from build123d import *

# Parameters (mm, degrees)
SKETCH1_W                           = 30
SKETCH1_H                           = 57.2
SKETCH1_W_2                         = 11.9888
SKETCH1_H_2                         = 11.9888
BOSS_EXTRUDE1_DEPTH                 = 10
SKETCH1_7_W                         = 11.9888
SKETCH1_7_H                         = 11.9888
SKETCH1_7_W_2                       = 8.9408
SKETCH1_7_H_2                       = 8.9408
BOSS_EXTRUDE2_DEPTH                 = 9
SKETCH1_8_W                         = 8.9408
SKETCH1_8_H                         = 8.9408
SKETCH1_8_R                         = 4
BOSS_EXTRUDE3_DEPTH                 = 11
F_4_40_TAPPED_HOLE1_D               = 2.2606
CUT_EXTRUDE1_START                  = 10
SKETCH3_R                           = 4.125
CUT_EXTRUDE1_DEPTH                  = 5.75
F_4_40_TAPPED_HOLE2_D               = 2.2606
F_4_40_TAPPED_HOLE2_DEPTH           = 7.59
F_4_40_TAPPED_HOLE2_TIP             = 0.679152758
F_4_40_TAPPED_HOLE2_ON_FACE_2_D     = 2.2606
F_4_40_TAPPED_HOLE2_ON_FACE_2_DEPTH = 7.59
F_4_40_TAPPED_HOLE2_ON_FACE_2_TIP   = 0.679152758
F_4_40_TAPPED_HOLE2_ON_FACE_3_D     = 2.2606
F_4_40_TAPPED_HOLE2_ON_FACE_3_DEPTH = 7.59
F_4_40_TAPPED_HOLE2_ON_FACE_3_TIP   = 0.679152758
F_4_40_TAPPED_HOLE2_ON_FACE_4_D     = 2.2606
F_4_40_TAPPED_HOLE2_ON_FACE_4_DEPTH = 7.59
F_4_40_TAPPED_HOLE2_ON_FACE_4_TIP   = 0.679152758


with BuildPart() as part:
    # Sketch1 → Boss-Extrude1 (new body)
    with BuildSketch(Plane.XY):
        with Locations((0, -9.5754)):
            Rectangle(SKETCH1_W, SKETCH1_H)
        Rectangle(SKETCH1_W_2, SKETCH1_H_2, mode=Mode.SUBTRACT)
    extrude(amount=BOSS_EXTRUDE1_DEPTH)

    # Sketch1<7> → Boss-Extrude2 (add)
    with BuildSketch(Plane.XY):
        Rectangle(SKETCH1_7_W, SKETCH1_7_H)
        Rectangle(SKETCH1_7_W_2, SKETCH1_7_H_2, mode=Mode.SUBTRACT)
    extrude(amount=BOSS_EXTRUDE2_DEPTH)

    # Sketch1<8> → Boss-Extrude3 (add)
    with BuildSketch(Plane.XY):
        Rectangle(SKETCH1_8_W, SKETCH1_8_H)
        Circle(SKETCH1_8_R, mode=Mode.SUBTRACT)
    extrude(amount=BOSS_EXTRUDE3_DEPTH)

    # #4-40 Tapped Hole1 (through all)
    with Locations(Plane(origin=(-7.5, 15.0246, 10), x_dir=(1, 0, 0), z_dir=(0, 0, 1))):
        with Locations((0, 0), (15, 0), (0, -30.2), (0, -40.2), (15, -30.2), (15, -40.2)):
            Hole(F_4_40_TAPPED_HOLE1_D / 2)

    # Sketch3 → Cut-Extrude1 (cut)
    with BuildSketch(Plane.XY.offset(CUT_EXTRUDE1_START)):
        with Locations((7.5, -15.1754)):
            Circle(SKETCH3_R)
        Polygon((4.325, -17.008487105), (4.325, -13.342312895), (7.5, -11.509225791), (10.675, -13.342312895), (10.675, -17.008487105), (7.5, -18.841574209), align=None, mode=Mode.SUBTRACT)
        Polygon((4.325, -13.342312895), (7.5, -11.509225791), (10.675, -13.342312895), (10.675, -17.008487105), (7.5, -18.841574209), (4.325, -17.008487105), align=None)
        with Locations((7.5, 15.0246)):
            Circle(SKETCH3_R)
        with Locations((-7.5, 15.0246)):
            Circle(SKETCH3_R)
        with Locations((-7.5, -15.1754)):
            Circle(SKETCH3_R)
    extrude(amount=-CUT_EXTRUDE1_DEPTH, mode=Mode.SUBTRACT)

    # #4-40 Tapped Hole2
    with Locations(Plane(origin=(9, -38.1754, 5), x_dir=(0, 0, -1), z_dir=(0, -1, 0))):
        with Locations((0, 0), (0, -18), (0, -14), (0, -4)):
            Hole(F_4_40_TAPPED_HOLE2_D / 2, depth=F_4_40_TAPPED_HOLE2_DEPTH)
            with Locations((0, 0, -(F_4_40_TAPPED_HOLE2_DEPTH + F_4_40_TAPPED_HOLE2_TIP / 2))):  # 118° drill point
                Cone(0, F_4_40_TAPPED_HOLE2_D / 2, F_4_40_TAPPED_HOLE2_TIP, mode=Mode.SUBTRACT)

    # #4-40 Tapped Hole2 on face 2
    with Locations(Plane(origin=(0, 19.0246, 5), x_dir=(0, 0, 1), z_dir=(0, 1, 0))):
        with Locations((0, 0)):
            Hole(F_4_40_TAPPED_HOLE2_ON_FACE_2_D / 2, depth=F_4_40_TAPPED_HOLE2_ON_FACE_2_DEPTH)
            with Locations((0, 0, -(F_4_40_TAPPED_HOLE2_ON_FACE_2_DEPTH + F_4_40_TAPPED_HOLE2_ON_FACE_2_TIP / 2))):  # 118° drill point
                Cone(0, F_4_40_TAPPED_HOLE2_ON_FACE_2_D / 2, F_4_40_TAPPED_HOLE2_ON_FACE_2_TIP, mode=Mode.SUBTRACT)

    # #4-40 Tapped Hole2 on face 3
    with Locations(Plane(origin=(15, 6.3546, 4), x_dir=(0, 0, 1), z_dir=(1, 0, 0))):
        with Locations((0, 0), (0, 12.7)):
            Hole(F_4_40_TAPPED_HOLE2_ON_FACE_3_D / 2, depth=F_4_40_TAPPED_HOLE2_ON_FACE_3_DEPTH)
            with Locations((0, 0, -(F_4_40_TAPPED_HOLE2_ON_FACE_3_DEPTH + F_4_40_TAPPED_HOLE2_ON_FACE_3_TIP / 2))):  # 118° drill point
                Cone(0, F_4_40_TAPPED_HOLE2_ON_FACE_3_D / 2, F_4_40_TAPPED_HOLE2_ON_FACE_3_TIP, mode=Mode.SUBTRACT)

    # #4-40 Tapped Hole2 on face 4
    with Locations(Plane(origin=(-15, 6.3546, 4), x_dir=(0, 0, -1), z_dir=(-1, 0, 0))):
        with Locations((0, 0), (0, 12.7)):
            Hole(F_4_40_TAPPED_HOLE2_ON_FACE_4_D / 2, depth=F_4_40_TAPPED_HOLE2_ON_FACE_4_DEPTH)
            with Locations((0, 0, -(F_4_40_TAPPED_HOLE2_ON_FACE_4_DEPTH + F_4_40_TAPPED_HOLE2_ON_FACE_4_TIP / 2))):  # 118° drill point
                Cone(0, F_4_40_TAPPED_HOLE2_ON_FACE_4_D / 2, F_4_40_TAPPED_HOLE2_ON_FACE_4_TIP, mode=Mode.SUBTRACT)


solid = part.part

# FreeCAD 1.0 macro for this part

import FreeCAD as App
import Part
import Sketcher
from FreeCAD import Vector
Q = App.Units.Quantity


def add_polygon(sketch, points):
    """Adds a closed chain of lines whose ends are joined by coincident constraints."""
    first, n = sketch.GeometryCount, len(points)
    for a, b in zip(points, points[1:] + points[:1]):
        sketch.addGeometry(Part.LineSegment(App.Vector(*a, 0), App.Vector(*b, 0)), False)
    for i in range(n):
        sketch.addConstraint(Sketcher.Constraint("Coincident", first + i, 2, first + (i + 1) % n, 1))

doc = App.newDocument("Part")
body = doc.addObject("PartDesign::Body", "Body")

sketch1 = body.newObject("Sketcher::SketchObject", "Sketch")
sketch1.AttachmentSupport = (doc.getObject("XY_Plane"), [""])
sketch1.MapMode = "FlatFace"
add_polygon(sketch1, [(-15, 19), (-15, -38), (15, -38), (15, 19)])
add_polygon(sketch1, [(6, -6), (-6, -6), (-6, 6), (6, 6)])
sketch1.addConstraint([
    Sketcher.Constraint("Vertical", 0),
    Sketcher.Constraint("Horizontal", 1),
    Sketcher.Constraint("Vertical", 2),
    Sketcher.Constraint("Horizontal", 3),
    Sketcher.Constraint("Horizontal", 4),
    Sketcher.Constraint("Vertical", 5),
    Sketcher.Constraint("Horizontal", 6),
    Sketcher.Constraint("Vertical", 7),
    Sketcher.Constraint("Symmetric", 4, 2, 6, 2, -1, 1),
    Sketcher.Constraint("Equal", 6, 5),
    Sketcher.Constraint("DistanceX", 1, 1, 1, 2, Q("30 mm")),
    Sketcher.Constraint("DistanceY", 0, 2, 0, 1, Q("57.2 mm")),
    Sketcher.Constraint("DistanceX", 0, 2, -1, 1, Q("15 mm")),
    Sketcher.Constraint("DistanceX", 4, 2, 4, 1, Q("11.9888 mm")),
    Sketcher.Constraint("DistanceY", 4, 2, 3, 2, Q("25.019 mm")),
])
pad1 = body.newObject("PartDesign::Pad", "Pad")
pad1.Profile = sketch1
pad1.Length = 10

sketch2 = body.newObject("Sketcher::SketchObject", "Sketch001")
sketch2.AttachmentSupport = (doc.getObject("XY_Plane"), [""])
sketch2.MapMode = "FlatFace"
add_polygon(sketch2, [(-6, 6), (-6, -6), (6, -6), (6, 6)])
add_polygon(sketch2, [(4, -4), (-4, -4), (-4, 4), (4, 4)])
sketch2.addConstraint([
    Sketcher.Constraint("Vertical", 0),
    Sketcher.Constraint("Horizontal", 1),
    Sketcher.Constraint("Vertical", 2),
    Sketcher.Constraint("Horizontal", 3),
    Sketcher.Constraint("Horizontal", 4),
    Sketcher.Constraint("Vertical", 5),
    Sketcher.Constraint("Horizontal", 6),
    Sketcher.Constraint("Vertical", 7),
    Sketcher.Constraint("Symmetric", 0, 2, 2, 2, -1, 1),
    Sketcher.Constraint("Symmetric", 4, 2, 6, 2, -1, 1),
    Sketcher.Constraint("Equal", 3, 0),
    Sketcher.Constraint("Equal", 6, 5),
    Sketcher.Constraint("DistanceX", 1, 1, 1, 2, Q("11.9888 mm")),
    Sketcher.Constraint("DistanceX", 4, 2, 4, 1, Q("8.9408 mm")),
])
pad2 = body.newObject("PartDesign::Pad", "Pad001")
pad2.Profile = sketch2
pad2.Length = 9

sketch3 = body.newObject("Sketcher::SketchObject", "Sketch002")
sketch3.AttachmentSupport = (doc.getObject("XY_Plane"), [""])
sketch3.MapMode = "FlatFace"
add_polygon(sketch3, [(-4.5, 4.5), (-4.5, -4.5), (4.5, -4.5), (4.5, 4.5)])
sketch3.addGeometry(Part.Circle(Vector(0, 0, 0), Vector(0, 0, 1), 4), False)
sketch3.addConstraint([
    Sketcher.Constraint("Vertical", 0),
    Sketcher.Constraint("Horizontal", 1),
    Sketcher.Constraint("Vertical", 2),
    Sketcher.Constraint("Horizontal", 3),
    Sketcher.Constraint("Coincident", 4, 3, -1, 1),
    Sketcher.Constraint("Symmetric", 0, 2, 2, 2, -1, 1),
    Sketcher.Constraint("Equal", 3, 0),
    Sketcher.Constraint("Diameter", 4, Q("8 mm")),
    Sketcher.Constraint("DistanceX", 1, 1, 1, 2, Q("8.9408 mm")),
])
pad3 = body.newObject("PartDesign::Pad", "Pad002")
pad3.Profile = sketch3
pad3.Length = 11

sketch4 = body.newObject("Sketcher::SketchObject", "Sketch003")
sketch4.AttachmentSupport = (doc.getObject("XY_Plane"), [""])
sketch4.MapMode = "FlatFace"
sketch4.AttachmentOffset = App.Placement(Vector(0, 0, 10), App.Rotation())
sketch4.addGeometry([
    Part.Circle(Vector(-7.5, 15, 0), Vector(0, 0, 1), 1.1),
    Part.Circle(Vector(7.5, 15, 0), Vector(0, 0, 1), 1.1),
    Part.Circle(Vector(-7.5, -15.2, 0), Vector(0, 0, 1), 1.1),
    Part.Circle(Vector(-7.5, -25.2, 0), Vector(0, 0, 1), 1.1),
    Part.Circle(Vector(7.5, -15.2, 0), Vector(0, 0, 1), 1.1),
    Part.Circle(Vector(7.5, -25.2, 0), Vector(0, 0, 1), 1.1),
], False)
sketch4.addConstraint([
    Sketcher.Constraint("Equal", 0, 1),
    Sketcher.Constraint("Equal", 1, 2),
    Sketcher.Constraint("Equal", 2, 3),
    Sketcher.Constraint("Equal", 3, 4),
    Sketcher.Constraint("Equal", 4, 5),
    Sketcher.Constraint("Symmetric", 0, 3, 1, 3, -2),
    Sketcher.Constraint("Symmetric", 2, 3, 4, 3, -2),
    Sketcher.Constraint("Symmetric", 3, 3, 5, 3, -2),
    Sketcher.Constraint("Vertical", 0, 3, 2, 3),
    Sketcher.Constraint("Vertical", 2, 3, 3, 3),
    Sketcher.Constraint("DistanceX", 0, 3, 1, 3, Q("15 mm")),
    Sketcher.Constraint("DistanceY", 3, 3, 2, 3, Q("10 mm")),
    Sketcher.Constraint("Diameter", 0, Q("2.2606 mm")),
    Sketcher.Constraint("DistanceY", 2, 3, 0, 3, Q("30.2 mm")),
    Sketcher.Constraint("DistanceY", -1, 1, 0, 3, Q("15.0246 mm")),
])
doc.recompute()
hole = body.newObject("PartDesign::Hole", "Hole")
hole.Profile = sketch4
hole.ThreadType = "None"
hole.Diameter = 2.2606
hole.DepthType = "ThroughAll"

sketch5 = body.newObject("Sketcher::SketchObject", "Sketch004")
sketch5.AttachmentSupport = (doc.getObject("XY_Plane"), [""])
sketch5.MapMode = "FlatFace"
sketch5.AttachmentOffset = App.Placement(Vector(0, 0, 10), App.Rotation())
sketch5.addGeometry([
    Part.Circle(Vector(7.5, -15.2, 0), Vector(0, 0, 1), 4.1),
    Part.Circle(Vector(7.5, 15, 0), Vector(0, 0, 1), 4.1),
    Part.Circle(Vector(-7.5, 15, 0), Vector(0, 0, 1), 4.1),
    Part.Circle(Vector(-7.5, -15.2, 0), Vector(0, 0, 1), 4.1),
], False)
sketch5.addConstraint([
    Sketcher.Constraint("Equal", 0, 1),
    Sketcher.Constraint("Equal", 1, 2),
    Sketcher.Constraint("Equal", 2, 3),
    Sketcher.Constraint("Symmetric", 1, 3, 2, 3, -2),
    Sketcher.Constraint("Symmetric", 0, 3, 3, 3, -2),
    Sketcher.Constraint("Vertical", 0, 3, 1, 3),
    Sketcher.Constraint("Diameter", 0, Q("8.25 mm")),
    Sketcher.Constraint("DistanceX", 2, 3, 1, 3, Q("15 mm")),
    Sketcher.Constraint("DistanceY", 0, 3, 1, 3, Q("30.2 mm")),
    Sketcher.Constraint("DistanceY", 0, 3, -1, 1, Q("15.1754 mm")),
])
pocket1 = body.newObject("PartDesign::Pocket", "Pocket")
pocket1.Profile = sketch5
pocket1.Length = 5.75

sketch6 = body.newObject("Sketcher::SketchObject", "Sketch005")
sketch6.AttachmentSupport = (doc.getObject("XZ_Plane"), [""])
sketch6.MapMode = "FlatFace"
sketch6.AttachmentOffset = App.Placement(Vector(0, 0, 38.1754), App.Rotation())
sketch6.addGeometry([
    Part.Circle(Vector(9, 5, 0), Vector(0, 0, 1), 1.1),
    Part.Circle(Vector(-9, 5, 0), Vector(0, 0, 1), 1.1),
    Part.Circle(Vector(-5, 5, 0), Vector(0, 0, 1), 1.1),
    Part.Circle(Vector(5, 5, 0), Vector(0, 0, 1), 1.1),
], False)
sketch6.addConstraint([
    Sketcher.Constraint("Equal", 0, 1),
    Sketcher.Constraint("Equal", 1, 2),
    Sketcher.Constraint("Equal", 2, 3),
    Sketcher.Constraint("Symmetric", 0, 3, 1, 3, -2),
    Sketcher.Constraint("Symmetric", 2, 3, 3, 3, -2),
    Sketcher.Constraint("Horizontal", 1, 3, 2, 3),
    Sketcher.Constraint("DistanceX", -1, 1, 0, 3, Q("9 mm")),
    Sketcher.Constraint("DistanceY", -1, 1, 0, 3, Q("5 mm")),
    Sketcher.Constraint("DistanceX", 2, 3, -1, 1, Q("5 mm")),
    Sketcher.Constraint("Diameter", 0, Q("2.2606 mm")),
])
doc.recompute()
hole2 = body.newObject("PartDesign::Hole", "Hole001")
hole2.Profile = sketch6
hole2.ThreadType = "None"
hole2.Diameter = 2.2606
hole2.DepthType = "Dimension"
hole2.Depth = 7.59
hole2.DrillPoint = "Angled"
hole2.DrillPointAngle = 118

sketch7 = body.newObject("Sketcher::SketchObject", "Sketch006")
sketch7.AttachmentSupport = (doc.getObject("XZ_Plane"), [""])
sketch7.MapMode = "FlatFace"
sketch7.AttachmentOffset = App.Placement(Vector(0, 0, -19.0246), App.Rotation())
sketch7.addGeometry(Part.Circle(Vector(0, 5, 0), Vector(0, 0, 1), 1.1), False)
sketch7.addConstraint([
    Sketcher.Constraint("PointOnObject", 0, 3, -2),
    Sketcher.Constraint("DistanceY", -1, 1, 0, 3, Q("5 mm")),
    Sketcher.Constraint("Diameter", 0, Q("2.2606 mm")),
])
doc.recompute()
hole3 = body.newObject("PartDesign::Hole", "Hole002")
hole3.Profile = sketch7
hole3.ThreadType = "None"
hole3.Diameter = 2.2606
hole3.DepthType = "Dimension"
hole3.Depth = 7.59
hole3.DrillPoint = "Angled"
hole3.DrillPointAngle = 118
hole3.Reversed = True

sketch8 = body.newObject("Sketcher::SketchObject", "Sketch007")
sketch8.AttachmentSupport = (doc.getObject("YZ_Plane"), [""])
sketch8.MapMode = "FlatFace"
sketch8.AttachmentOffset = App.Placement(Vector(0, 0, 15), App.Rotation())
sketch8.addGeometry([
    Part.Circle(Vector(6.4, 4, 0), Vector(0, 0, 1), 1.1),
    Part.Circle(Vector(-6.3, 4, 0), Vector(0, 0, 1), 1.1),
], False)
sketch8.addConstraint([
    Sketcher.Constraint("Equal", 0, 1),
    Sketcher.Constraint("Horizontal", 0, 3, 1, 3),
    Sketcher.Constraint("DistanceY", -1, 1, 0, 3, Q("4 mm")),
    Sketcher.Constraint("Diameter", 0, Q("2.2606 mm")),
    Sketcher.Constraint("DistanceX", 1, 3, 0, 3, Q("12.7 mm")),
    Sketcher.Constraint("DistanceX", -1, 1, 0, 3, Q("6.3546 mm")),
])
doc.recompute()
hole4 = body.newObject("PartDesign::Hole", "Hole003")
hole4.Profile = sketch8
hole4.ThreadType = "None"
hole4.Diameter = 2.2606
hole4.DepthType = "Dimension"
hole4.Depth = 7.59
hole4.DrillPoint = "Angled"
hole4.DrillPointAngle = 118

sketch9 = body.newObject("Sketcher::SketchObject", "Sketch008")
sketch9.AttachmentSupport = (doc.getObject("YZ_Plane"), [""])
sketch9.MapMode = "FlatFace"
sketch9.AttachmentOffset = App.Placement(Vector(0, 0, -15), App.Rotation())
sketch9.addGeometry([
    Part.Circle(Vector(6.4, 4, 0), Vector(0, 0, 1), 1.1),
    Part.Circle(Vector(-6.3, 4, 0), Vector(0, 0, 1), 1.1),
], False)
sketch9.addConstraint([
    Sketcher.Constraint("Equal", 0, 1),
    Sketcher.Constraint("Horizontal", 0, 3, 1, 3),
    Sketcher.Constraint("DistanceY", -1, 1, 0, 3, Q("4 mm")),
    Sketcher.Constraint("Diameter", 0, Q("2.2606 mm")),
    Sketcher.Constraint("DistanceX", 1, 3, 0, 3, Q("12.7 mm")),
    Sketcher.Constraint("DistanceX", -1, 1, 0, 3, Q("6.3546 mm")),
])
doc.recompute()
hole5 = body.newObject("PartDesign::Hole", "Hole004")
hole5.Profile = sketch9
hole5.ThreadType = "None"
hole5.Diameter = 2.2606
hole5.DepthType = "Dimension"
hole5.Depth = 7.59
hole5.DrillPoint = "Angled"
hole5.DrillPointAngle = 118
hole5.Reversed = True

doc.recompute()
